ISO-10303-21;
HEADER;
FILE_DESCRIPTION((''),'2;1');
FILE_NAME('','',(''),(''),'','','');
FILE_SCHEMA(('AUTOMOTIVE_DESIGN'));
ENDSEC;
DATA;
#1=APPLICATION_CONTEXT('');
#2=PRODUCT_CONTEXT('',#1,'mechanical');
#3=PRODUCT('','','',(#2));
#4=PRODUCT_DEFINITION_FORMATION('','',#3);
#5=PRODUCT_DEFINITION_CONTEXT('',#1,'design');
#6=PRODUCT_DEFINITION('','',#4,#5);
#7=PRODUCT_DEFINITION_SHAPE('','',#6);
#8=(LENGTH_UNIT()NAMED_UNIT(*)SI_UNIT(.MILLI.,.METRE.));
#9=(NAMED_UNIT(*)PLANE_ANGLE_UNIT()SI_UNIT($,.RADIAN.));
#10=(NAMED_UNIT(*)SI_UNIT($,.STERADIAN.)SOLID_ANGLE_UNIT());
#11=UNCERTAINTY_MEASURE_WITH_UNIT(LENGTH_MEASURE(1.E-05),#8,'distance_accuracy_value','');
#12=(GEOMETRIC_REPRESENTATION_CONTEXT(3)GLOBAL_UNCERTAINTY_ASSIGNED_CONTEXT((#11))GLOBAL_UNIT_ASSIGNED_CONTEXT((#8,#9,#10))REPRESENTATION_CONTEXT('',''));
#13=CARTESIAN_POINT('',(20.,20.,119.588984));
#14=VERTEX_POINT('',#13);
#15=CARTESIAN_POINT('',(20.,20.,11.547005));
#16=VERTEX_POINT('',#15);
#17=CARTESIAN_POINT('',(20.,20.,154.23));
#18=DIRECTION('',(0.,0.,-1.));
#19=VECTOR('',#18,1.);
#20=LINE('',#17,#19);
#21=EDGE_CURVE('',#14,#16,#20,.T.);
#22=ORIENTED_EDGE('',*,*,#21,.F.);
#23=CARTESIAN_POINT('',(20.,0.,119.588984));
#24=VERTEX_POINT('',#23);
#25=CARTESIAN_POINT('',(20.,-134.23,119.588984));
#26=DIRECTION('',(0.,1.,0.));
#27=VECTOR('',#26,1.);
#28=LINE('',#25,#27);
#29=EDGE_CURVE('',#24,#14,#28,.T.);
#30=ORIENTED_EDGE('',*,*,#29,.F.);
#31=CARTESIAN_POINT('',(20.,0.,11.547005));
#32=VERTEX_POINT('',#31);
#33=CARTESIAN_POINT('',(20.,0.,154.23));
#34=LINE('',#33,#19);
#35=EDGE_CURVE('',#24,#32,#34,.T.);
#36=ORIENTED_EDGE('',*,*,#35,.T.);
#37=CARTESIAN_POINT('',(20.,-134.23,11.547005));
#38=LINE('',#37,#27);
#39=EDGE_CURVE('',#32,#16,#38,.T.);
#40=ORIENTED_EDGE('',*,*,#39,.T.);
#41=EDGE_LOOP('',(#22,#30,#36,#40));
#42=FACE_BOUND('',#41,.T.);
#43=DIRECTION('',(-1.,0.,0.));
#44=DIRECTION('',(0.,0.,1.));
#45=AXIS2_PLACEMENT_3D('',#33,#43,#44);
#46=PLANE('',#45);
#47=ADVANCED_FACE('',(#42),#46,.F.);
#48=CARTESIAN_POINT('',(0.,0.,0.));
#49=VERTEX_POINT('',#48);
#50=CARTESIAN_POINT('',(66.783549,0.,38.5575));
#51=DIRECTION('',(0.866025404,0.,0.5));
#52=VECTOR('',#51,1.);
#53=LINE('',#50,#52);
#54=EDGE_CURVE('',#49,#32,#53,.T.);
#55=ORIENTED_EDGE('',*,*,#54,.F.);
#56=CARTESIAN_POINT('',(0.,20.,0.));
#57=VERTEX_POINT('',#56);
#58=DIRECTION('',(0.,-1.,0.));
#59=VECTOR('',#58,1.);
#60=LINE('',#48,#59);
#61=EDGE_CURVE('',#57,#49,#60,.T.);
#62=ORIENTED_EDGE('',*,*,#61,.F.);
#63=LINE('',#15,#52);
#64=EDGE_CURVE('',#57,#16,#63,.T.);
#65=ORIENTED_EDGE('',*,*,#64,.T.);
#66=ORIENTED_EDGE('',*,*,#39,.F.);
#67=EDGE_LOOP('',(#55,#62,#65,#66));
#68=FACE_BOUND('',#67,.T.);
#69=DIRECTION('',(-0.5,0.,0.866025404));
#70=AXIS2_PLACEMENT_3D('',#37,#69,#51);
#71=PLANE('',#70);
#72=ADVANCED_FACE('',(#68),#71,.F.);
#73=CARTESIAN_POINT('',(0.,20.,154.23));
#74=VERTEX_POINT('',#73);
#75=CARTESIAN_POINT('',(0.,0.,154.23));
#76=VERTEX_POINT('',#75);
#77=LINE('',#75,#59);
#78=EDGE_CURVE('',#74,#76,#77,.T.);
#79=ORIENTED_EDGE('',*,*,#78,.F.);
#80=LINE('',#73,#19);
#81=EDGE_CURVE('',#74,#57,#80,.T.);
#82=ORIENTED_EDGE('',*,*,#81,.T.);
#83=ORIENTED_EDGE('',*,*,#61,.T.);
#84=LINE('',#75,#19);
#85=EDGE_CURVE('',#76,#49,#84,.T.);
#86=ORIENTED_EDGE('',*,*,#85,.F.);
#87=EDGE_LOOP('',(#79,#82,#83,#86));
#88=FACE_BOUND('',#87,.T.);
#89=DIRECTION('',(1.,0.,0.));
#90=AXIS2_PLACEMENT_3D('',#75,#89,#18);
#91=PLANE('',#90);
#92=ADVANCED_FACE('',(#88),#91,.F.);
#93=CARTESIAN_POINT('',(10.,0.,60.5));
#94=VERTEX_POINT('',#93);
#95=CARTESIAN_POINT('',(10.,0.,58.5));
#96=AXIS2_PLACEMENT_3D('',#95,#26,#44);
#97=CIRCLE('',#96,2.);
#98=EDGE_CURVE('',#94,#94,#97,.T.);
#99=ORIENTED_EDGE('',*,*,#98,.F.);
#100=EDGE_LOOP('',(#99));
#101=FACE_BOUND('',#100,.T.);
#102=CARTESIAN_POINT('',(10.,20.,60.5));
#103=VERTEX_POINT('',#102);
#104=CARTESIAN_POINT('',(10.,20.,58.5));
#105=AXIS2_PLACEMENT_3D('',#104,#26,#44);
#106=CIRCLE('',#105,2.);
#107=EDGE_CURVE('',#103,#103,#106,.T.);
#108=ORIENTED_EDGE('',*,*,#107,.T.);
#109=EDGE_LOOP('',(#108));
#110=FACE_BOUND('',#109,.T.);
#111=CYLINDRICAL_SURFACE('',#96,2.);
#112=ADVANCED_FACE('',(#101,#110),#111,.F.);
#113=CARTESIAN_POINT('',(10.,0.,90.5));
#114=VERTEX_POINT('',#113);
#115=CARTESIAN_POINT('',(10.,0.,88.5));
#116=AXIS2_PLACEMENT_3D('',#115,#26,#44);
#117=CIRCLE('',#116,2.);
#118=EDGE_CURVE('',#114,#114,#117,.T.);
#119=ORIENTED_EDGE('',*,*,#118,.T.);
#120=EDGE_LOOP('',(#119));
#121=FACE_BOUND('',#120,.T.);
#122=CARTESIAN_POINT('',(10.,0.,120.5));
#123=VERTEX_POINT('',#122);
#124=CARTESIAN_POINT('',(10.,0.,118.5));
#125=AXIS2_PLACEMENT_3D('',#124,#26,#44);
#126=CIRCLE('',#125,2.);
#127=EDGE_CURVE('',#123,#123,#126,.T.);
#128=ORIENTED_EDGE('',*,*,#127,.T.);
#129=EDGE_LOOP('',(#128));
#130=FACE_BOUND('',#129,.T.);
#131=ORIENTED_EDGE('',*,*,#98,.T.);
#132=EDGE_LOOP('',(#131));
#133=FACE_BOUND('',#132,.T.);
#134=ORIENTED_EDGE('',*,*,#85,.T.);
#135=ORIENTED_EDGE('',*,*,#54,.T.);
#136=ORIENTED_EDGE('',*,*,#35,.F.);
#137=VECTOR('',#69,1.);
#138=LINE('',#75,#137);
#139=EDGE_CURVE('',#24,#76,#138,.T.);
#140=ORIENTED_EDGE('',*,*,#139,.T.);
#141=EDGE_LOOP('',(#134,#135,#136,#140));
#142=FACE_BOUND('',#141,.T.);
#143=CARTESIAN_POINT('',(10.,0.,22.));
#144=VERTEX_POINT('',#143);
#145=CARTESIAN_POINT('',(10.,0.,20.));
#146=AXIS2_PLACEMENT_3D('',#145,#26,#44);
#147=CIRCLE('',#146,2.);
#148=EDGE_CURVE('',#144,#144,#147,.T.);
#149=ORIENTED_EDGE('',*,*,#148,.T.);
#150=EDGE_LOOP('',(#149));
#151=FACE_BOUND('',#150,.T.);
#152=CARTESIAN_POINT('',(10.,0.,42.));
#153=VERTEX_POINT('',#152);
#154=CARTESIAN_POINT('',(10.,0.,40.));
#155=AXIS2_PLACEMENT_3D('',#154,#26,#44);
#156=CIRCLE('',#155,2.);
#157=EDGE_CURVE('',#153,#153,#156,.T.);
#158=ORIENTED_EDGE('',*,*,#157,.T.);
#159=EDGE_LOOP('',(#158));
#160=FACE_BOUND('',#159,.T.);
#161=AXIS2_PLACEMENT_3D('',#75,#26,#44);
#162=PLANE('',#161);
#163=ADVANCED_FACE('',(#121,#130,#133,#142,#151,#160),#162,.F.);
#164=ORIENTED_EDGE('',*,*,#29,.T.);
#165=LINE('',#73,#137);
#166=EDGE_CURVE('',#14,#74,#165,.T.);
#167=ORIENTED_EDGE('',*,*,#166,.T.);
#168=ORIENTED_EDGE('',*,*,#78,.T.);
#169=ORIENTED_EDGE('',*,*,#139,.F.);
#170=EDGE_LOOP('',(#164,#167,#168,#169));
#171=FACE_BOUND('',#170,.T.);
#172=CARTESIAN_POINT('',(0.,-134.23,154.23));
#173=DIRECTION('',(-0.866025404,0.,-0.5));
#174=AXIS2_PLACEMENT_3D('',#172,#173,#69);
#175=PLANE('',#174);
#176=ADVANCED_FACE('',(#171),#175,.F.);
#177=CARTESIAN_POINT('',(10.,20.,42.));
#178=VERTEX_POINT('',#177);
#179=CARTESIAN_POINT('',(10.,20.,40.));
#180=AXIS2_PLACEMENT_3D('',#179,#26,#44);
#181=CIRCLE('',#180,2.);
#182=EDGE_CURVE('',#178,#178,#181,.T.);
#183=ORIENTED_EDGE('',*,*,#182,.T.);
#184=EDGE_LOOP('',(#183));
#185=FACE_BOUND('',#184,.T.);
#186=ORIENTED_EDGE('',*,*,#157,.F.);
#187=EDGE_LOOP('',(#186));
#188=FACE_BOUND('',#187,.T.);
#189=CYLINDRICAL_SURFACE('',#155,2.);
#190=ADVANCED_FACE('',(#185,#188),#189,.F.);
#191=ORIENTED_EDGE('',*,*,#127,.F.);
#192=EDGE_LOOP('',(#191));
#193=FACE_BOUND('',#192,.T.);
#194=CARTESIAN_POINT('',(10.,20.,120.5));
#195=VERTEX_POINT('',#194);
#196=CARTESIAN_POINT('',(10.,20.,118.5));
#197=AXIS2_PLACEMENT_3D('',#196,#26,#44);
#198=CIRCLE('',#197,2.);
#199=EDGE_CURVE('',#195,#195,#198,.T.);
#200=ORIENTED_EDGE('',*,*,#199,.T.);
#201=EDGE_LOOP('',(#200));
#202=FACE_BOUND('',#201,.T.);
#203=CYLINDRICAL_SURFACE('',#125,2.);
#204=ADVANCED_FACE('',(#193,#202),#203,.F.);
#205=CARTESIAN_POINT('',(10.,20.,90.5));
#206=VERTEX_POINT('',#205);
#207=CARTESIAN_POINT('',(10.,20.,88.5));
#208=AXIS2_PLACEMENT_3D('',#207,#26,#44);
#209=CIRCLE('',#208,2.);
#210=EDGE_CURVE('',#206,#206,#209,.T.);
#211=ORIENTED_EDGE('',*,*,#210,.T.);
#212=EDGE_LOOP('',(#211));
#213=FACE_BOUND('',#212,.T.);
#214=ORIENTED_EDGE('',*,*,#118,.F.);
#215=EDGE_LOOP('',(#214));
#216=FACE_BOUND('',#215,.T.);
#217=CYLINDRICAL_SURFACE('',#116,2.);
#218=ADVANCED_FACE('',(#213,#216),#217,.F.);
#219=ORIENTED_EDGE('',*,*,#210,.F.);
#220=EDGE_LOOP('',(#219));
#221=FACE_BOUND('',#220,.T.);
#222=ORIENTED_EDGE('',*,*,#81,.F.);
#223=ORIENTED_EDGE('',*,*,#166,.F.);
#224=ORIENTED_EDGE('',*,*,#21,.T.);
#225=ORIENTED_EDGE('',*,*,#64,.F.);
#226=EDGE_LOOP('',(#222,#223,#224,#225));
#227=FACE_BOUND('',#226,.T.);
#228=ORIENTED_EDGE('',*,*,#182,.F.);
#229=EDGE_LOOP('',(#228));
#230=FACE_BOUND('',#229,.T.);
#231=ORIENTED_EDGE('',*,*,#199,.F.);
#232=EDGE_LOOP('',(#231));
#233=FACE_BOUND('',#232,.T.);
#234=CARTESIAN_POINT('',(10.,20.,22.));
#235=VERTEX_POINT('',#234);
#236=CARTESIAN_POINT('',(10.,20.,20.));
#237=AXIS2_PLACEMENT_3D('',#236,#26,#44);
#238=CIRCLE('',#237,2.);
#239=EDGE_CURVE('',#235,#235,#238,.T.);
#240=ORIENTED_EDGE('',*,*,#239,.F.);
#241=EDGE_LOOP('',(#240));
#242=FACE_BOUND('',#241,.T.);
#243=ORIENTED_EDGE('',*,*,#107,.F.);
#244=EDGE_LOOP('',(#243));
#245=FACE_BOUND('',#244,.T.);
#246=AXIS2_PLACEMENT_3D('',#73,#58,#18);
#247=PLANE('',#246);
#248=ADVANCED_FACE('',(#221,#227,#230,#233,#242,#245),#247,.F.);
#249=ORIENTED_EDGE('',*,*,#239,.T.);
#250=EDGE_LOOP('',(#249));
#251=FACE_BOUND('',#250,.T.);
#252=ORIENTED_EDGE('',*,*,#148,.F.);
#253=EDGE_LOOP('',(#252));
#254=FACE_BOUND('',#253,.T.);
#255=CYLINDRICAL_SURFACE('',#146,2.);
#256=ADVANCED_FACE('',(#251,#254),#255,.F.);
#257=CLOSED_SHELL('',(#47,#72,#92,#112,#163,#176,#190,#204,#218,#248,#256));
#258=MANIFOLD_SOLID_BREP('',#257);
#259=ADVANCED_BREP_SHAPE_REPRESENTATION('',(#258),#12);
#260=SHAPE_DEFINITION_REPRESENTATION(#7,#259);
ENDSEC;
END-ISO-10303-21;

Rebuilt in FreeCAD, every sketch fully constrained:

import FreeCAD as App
import Part
import Sketcher

V = App.Vector
Q = App.Units.Quantity


def add_polygon(sketch, points):
    """Adds a closed chain of lines whose ends are joined by coincident constraints."""
    first, n = sketch.GeometryCount, len(points)
    for a, b in zip(points, points[1:] + points[:1]):
        sketch.addGeometry(Part.LineSegment(App.Vector(*a, 0), App.Vector(*b, 0)), False)
    for i in range(n):
        sketch.addConstraint(Sketcher.Constraint("Coincident", first + i, 2, first + (i + 1) % n, 1))

doc = App.newDocument("Part")
body = doc.addObject("PartDesign::Body", "Body")

# Sketch on XY plane
sketch1 = doc.addObject("Sketcher::SketchObject", "Sketch")
body.addObject(sketch1)
sketch1.AttachmentSupport = (doc.XY_Plane, [""])
sketch1.MapMode = "FlatFace"
add_polygon(sketch1, [(0, 20), (0, 0), (20, 0), (20, 20)])  # lines 0-3
sketch1.addConstraint([
    Sketcher.Constraint("Vertical", 0),
    Sketcher.Constraint("Horizontal", 1),
    Sketcher.Constraint("Vertical", 2),
    Sketcher.Constraint("Horizontal", 3),
    Sketcher.Constraint("Coincident", 0, 2, -1, 1),
    Sketcher.Constraint("Equal", 3, 0),
    Sketcher.Constraint("DistanceX", 1, 1, 1, 2, Q("20 mm")),
])
pad1 = doc.addObject("PartDesign::Pad", "Pad")
body.addObject(pad1)
pad1.Profile = sketch1
pad1.Length = 154.23

# Sketch on XZ plane
sketch2 = doc.addObject("Sketcher::SketchObject", "Sketch001")
body.addObject(sketch2)
sketch2.AttachmentSupport = (doc.XZ_Plane, [""])
sketch2.MapMode = "FlatFace"
sketch2.AttachmentOffset = App.Placement(V(0, 0, -20), App.Rotation())
add_polygon(sketch2, [(20, 120), (0, 154), (20, 154)])  # lines 0-2
add_polygon(sketch2, [(0, 0), (20, 12), (20, 0)])  # lines 3-5
sketch2.addConstraint([
    Sketcher.Constraint("Horizontal", 1),
    Sketcher.Constraint("Vertical", 2),
    Sketcher.Constraint("Vertical", 4),
    Sketcher.Constraint("Horizontal", 5),
    Sketcher.Constraint("Coincident", 5, 2, -1, 1),
    Sketcher.Constraint("PointOnObject", 0, 2, -2),
    Sketcher.Constraint("Perpendicular", 0, 3),
    Sketcher.Constraint("Vertical", 2, 2, 3, 2),
    Sketcher.Constraint("DistanceX", 1, 1, 1, 2, Q("20 mm")),
    Sketcher.Constraint("Angle", 0, Q("120 deg")),
    Sketcher.Constraint("DistanceY", -1, 1, 0, 2, Q("154.23 mm")),
])
pocket1 = doc.addObject("PartDesign::Pocket", "Pocket")
body.addObject(pocket1)
pocket1.Profile = sketch2
pocket1.Length = 154.23
pocket1.Reversed = True

# Sketch on XZ plane
sketch3 = doc.addObject("Sketcher::SketchObject", "Sketch002")
body.addObject(sketch3)
sketch3.AttachmentSupport = (doc.XZ_Plane, [""])
sketch3.MapMode = "FlatFace"
sketch3.AttachmentOffset = App.Placement(V(0, 0, -20), App.Rotation())
sketch3.addGeometry([
    Part.Circle(V(10, 88.5, 0), V(0, 0, 1), 2),  # 0
    Part.Circle(V(10, 118.5, 0), V(0, 0, 1), 2),  # 1
    Part.Circle(V(10, 58.5, 0), V(0, 0, 1), 2),  # 2
    Part.Circle(V(10, 20, 0), V(0, 0, 1), 2),  # 3
    Part.Circle(V(10, 40, 0), V(0, 0, 1), 2),  # 4
], False)
sketch3.addConstraint([
    Sketcher.Constraint("Equal", 0, 1),
    Sketcher.Constraint("Equal", 1, 2),
    Sketcher.Constraint("Equal", 2, 3),
    Sketcher.Constraint("Equal", 3, 4),
    Sketcher.Constraint("Vertical", 0, 3, 1, 3),
    Sketcher.Constraint("Vertical", 1, 3, 2, 3),
    Sketcher.Constraint("Vertical", 2, 3, 3, 3),
    Sketcher.Constraint("Vertical", 3, 3, 4, 3),
    Sketcher.Constraint("Diameter", 0, Q("4 mm")),
    Sketcher.Constraint("DistanceX", -1, 1, 0, 3, Q("10 mm")),
    Sketcher.Constraint("DistanceY", -1, 1, 3, 3, Q("20 mm")),
    Sketcher.Constraint("DistanceY", -1, 1, 4, 3, Q("40 mm")),
    Sketcher.Constraint("DistanceY", 0, 3, 1, 3, Q("30 mm")),
    Sketcher.Constraint("DistanceY", 2, 3, 0, 3, Q("30 mm")),
    Sketcher.Constraint("DistanceY", -1, 1, 0, 3, Q("88.5 mm")),
])
pocket2 = doc.addObject("PartDesign::Pocket", "Pocket001")
body.addObject(pocket2)
pocket2.Profile = sketch3
pocket2.Type = "ThroughAll"
pocket2.Midplane = True

doc.recompute()
